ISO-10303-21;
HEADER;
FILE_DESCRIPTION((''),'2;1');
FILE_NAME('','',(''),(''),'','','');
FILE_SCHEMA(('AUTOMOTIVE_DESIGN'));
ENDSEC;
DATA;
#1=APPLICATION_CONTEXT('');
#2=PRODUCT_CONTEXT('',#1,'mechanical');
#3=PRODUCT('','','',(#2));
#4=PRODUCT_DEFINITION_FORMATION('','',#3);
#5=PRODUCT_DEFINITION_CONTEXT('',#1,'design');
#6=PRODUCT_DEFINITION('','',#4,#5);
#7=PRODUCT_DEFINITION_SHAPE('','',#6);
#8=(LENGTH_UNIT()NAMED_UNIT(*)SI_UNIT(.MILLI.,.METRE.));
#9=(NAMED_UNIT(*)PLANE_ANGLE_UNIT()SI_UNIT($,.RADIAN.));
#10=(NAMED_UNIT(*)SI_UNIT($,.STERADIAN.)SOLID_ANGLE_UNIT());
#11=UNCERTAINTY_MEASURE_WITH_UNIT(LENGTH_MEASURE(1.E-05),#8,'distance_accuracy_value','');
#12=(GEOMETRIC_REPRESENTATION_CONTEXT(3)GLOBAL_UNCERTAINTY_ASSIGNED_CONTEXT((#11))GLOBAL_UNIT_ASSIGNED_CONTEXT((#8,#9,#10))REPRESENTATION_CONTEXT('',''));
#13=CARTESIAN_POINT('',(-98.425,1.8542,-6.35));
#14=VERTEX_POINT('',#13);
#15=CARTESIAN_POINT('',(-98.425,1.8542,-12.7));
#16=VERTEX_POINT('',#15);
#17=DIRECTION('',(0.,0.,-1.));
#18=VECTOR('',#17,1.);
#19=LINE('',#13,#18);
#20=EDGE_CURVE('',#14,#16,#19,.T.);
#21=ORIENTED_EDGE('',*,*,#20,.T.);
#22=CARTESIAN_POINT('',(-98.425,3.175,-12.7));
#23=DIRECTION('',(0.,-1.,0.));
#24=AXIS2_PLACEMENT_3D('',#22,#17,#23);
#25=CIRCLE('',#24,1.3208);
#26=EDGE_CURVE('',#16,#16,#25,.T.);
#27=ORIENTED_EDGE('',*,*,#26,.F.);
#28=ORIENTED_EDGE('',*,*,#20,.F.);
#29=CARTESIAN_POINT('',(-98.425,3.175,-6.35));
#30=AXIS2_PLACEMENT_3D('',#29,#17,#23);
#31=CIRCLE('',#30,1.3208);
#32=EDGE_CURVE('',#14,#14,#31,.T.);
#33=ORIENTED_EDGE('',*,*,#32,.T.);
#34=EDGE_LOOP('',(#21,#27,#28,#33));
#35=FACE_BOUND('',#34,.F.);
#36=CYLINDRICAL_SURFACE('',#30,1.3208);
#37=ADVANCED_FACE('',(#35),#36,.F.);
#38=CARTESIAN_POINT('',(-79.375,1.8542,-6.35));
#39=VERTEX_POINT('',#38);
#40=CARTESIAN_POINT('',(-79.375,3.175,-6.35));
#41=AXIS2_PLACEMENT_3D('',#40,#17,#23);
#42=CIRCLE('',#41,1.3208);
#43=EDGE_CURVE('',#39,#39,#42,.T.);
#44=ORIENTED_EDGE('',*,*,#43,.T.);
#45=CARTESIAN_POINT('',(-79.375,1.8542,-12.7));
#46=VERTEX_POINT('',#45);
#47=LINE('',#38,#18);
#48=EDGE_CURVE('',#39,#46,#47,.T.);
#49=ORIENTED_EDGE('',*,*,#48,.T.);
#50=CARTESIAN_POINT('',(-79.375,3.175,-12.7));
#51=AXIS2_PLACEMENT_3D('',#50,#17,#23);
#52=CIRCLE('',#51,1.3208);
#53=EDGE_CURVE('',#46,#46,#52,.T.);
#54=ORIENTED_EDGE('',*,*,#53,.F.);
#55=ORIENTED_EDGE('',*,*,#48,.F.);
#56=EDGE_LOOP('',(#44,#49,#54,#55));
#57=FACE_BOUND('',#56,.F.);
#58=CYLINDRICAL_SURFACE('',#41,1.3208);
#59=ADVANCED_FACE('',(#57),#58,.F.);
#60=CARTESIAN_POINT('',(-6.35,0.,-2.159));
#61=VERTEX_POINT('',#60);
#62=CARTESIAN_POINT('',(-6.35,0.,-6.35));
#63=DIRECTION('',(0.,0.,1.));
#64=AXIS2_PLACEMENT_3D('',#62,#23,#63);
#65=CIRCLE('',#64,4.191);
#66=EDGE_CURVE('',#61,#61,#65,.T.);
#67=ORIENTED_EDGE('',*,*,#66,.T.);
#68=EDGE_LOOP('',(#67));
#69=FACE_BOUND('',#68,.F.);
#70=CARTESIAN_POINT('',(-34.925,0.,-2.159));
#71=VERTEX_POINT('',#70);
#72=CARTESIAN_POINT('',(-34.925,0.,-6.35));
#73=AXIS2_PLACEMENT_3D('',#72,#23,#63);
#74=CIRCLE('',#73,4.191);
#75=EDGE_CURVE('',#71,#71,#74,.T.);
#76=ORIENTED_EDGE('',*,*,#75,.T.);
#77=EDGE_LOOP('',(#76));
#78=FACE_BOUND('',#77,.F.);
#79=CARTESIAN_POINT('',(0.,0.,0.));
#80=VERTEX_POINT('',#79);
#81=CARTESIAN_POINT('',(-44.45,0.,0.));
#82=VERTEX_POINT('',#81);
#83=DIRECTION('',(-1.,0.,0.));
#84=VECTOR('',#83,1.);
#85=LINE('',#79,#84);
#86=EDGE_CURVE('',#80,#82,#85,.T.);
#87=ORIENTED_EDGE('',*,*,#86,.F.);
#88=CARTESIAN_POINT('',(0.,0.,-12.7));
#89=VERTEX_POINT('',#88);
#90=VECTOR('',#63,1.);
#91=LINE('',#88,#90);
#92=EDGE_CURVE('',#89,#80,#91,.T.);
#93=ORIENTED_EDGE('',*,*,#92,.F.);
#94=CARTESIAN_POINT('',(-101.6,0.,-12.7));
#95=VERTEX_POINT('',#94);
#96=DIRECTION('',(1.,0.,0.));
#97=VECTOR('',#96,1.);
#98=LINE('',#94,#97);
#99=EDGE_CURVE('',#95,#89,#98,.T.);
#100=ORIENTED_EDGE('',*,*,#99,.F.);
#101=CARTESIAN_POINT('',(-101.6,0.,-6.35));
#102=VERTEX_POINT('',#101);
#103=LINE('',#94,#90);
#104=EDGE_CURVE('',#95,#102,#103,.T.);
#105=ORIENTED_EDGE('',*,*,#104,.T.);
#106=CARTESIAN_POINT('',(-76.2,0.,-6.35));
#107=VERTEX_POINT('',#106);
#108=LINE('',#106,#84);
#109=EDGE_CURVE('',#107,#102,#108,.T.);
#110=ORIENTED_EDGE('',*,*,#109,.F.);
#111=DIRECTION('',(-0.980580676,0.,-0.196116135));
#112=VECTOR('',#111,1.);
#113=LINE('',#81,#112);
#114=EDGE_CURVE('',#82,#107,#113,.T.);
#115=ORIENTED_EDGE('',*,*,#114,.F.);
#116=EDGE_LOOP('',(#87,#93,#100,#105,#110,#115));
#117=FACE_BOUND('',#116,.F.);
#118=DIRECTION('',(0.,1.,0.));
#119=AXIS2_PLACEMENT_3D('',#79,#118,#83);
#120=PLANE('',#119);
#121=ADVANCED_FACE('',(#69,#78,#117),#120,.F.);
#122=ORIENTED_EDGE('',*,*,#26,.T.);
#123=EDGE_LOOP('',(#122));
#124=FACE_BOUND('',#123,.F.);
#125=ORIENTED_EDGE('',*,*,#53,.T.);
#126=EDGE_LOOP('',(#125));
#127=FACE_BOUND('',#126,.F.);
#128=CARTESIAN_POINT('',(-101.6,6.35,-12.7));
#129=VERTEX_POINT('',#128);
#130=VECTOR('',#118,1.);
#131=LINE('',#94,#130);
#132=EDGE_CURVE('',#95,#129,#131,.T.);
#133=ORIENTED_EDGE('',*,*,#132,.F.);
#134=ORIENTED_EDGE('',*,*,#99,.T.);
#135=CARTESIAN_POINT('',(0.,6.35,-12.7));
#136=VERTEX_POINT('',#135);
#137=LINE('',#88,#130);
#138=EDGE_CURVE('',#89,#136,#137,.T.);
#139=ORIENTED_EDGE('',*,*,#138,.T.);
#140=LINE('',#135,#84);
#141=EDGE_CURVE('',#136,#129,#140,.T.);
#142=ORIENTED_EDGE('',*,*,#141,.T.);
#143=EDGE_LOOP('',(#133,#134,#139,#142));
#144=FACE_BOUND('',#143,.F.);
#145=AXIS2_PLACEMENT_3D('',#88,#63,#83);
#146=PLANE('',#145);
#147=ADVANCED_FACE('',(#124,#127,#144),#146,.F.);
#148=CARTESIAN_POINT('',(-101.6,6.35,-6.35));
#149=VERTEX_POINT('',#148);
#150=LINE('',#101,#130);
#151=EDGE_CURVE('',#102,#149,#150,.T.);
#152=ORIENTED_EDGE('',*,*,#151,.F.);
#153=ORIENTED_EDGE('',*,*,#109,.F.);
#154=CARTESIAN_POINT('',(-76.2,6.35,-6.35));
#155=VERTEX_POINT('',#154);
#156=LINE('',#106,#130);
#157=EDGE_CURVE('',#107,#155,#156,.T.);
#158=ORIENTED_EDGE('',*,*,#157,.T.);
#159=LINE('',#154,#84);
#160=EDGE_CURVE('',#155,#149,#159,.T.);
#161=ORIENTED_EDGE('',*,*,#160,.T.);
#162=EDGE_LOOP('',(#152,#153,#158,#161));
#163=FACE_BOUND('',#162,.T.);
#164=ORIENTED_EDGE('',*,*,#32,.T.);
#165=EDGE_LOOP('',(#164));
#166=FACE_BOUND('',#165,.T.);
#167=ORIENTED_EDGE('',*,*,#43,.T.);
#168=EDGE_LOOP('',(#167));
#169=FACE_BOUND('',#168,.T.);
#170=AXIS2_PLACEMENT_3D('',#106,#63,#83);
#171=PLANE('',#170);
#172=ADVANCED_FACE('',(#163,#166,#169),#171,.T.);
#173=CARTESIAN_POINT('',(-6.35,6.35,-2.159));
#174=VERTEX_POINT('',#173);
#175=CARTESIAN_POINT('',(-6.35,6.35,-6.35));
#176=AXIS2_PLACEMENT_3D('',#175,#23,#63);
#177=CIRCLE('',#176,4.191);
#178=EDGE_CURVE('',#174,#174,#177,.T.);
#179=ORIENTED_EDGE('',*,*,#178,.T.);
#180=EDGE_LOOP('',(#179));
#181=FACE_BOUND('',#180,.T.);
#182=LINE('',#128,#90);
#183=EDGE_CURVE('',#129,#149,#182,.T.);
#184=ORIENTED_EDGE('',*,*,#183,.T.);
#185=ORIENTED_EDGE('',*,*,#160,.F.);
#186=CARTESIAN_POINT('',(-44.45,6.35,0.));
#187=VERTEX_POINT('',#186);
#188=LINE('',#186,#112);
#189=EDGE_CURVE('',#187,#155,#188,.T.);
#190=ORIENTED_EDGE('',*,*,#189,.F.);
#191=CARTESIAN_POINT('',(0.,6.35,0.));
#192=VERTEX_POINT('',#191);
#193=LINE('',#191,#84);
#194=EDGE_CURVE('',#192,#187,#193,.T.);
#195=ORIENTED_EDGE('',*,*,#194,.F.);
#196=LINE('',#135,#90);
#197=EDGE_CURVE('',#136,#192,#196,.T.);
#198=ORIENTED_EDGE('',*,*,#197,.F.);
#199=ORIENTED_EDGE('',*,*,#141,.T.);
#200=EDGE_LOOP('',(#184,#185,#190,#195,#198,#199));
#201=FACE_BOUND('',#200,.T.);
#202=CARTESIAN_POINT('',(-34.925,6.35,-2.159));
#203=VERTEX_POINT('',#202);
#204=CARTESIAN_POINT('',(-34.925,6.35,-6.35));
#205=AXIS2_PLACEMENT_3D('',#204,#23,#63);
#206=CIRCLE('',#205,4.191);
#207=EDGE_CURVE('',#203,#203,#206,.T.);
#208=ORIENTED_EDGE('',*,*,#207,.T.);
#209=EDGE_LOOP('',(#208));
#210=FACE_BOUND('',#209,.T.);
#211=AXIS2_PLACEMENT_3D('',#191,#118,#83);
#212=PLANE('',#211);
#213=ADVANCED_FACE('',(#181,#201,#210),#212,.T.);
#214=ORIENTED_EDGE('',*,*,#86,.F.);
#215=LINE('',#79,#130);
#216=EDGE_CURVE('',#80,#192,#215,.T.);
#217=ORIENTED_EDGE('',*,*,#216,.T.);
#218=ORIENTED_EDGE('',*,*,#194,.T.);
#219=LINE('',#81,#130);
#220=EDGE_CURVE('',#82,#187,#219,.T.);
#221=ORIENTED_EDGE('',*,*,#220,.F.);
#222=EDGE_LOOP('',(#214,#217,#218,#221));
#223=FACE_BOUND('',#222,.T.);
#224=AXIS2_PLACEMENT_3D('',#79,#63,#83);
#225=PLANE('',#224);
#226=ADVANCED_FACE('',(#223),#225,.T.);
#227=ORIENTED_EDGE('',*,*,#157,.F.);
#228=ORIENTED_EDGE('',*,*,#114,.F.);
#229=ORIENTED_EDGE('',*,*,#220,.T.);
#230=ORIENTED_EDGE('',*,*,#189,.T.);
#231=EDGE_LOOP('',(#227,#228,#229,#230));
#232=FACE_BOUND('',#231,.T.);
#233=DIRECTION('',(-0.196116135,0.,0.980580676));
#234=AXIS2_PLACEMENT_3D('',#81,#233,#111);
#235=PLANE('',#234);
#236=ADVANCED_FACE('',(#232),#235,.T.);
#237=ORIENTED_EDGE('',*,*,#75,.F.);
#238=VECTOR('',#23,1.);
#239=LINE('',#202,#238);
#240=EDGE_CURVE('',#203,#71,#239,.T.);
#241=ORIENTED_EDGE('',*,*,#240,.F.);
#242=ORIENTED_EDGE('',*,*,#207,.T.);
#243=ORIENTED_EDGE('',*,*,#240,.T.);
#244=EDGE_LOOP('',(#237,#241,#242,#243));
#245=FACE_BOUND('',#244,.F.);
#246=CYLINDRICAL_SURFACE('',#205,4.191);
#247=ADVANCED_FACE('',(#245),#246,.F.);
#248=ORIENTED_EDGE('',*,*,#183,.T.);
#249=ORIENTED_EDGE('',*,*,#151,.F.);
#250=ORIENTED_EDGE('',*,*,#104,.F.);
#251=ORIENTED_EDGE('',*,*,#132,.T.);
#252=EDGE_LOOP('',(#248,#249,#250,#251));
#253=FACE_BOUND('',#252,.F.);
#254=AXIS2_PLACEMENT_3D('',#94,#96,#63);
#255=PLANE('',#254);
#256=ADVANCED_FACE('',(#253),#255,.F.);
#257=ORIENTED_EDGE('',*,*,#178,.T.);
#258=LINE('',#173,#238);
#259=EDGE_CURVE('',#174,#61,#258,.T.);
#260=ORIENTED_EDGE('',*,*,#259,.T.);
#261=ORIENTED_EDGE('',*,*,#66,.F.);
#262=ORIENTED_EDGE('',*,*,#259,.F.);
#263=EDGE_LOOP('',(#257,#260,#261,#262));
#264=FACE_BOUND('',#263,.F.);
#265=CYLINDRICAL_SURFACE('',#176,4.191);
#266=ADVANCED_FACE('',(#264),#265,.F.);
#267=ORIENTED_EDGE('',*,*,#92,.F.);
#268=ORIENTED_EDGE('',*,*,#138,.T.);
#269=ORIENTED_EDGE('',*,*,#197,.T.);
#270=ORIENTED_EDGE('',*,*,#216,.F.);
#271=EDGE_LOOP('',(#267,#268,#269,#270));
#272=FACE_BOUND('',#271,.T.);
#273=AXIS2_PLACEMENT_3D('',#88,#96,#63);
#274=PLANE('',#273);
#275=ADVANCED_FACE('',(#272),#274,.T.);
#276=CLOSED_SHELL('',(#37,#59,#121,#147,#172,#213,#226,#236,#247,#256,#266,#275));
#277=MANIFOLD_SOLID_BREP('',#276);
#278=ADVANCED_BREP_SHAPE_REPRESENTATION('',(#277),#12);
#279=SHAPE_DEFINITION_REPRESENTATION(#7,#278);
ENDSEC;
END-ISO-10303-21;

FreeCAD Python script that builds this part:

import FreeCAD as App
import Part
import Sketcher
Q = App.Units.Quantity

doc = App.newDocument("Part")
body = doc.addObject("PartDesign::Body", "Body")

# Sketch on XZ plane
sketch1 = body.newObject("Sketcher::SketchObject", "Sketch")
sketch1.AttachmentSupport = (doc.getObject("XZ_Plane"), [""])
sketch1.MapMode = "FlatFace"
sketch1.addGeometry([
    Part.LineSegment(App.Vector(-44, 0, 0), App.Vector(0, 0, 0)),  # 0
    Part.LineSegment(App.Vector(0, 0, 0), App.Vector(0, -13, 0)),  # 1
    Part.LineSegment(App.Vector(0, -13, 0), App.Vector(-102, -13, 0)),  # 2
    Part.LineSegment(App.Vector(-102, -13, 0), App.Vector(-102, -6, 0)),  # 3
    Part.LineSegment(App.Vector(-102, -6, 0), App.Vector(-76, -6, 0)),  # 4
    Part.LineSegment(App.Vector(-76, -6, 0), App.Vector(-44, 0, 0)),  # 5
], False)
sketch1.addConstraint([
    Sketcher.Constraint("Coincident", 0, 2, 1, 1),
    Sketcher.Constraint("Coincident", 1, 2, 2, 1),
    Sketcher.Constraint("Coincident", 2, 2, 3, 1),
    Sketcher.Constraint("Coincident", 3, 2, 4, 1),
    Sketcher.Constraint("Coincident", 4, 2, 5, 1),
    Sketcher.Constraint("Coincident", 5, 2, 0, 1),
    Sketcher.Constraint("Horizontal", 0),
    Sketcher.Constraint("Vertical", 1),
    Sketcher.Constraint("Horizontal", 2),
    Sketcher.Constraint("Vertical", 3),
    Sketcher.Constraint("Horizontal", 4),
    Sketcher.Constraint("Coincident", 0, 2, -1, 1),
    Sketcher.Constraint("DistanceX", 2, 2, 2, 1, Q("4 in")),
    Sketcher.Constraint("DistanceY", 1, 2, 1, 1, Q("0.5 in")),
    Sketcher.Constraint("DistanceX", 0, 1, 0, 2, Q("1.75 in")),
    Sketcher.Constraint("DistanceY", 3, 1, 3, 2, Q("0.25 in")),
    Sketcher.Constraint("DistanceX", 4, 1, 4, 2, Q("1 in")),
])
pad1 = body.newObject("PartDesign::Pad", "Pad")
pad1.Profile = sketch1
pad1.Length = Q("0.25 in")
pad1.Reversed = True

# Sketch on XZ plane
sketch2 = body.newObject("Sketcher::SketchObject", "Sketch001")
sketch2.AttachmentSupport = (doc.getObject("XZ_Plane"), [""])
sketch2.MapMode = "FlatFace"
sketch2.AttachmentOffset = App.Placement(App.Vector(0, 0, -0.25 * 25.4), App.Rotation())
sketch2.addGeometry([
    Part.Circle(App.Vector(-6.3, -6.3, 0), App.Vector(0, 0, 1), 4.2),
    Part.Circle(App.Vector(-34.9, -6.3, 0), App.Vector(0, 0, 1), 4.2),
], False)
sketch2.addConstraint([
    Sketcher.Constraint("Equal", 0, 1),
    Sketcher.Constraint("Horizontal", 0, 3, 1, 3),
    Sketcher.Constraint("Diameter", 0, Q("0.33 in")),
    Sketcher.Constraint("DistanceX", 0, 3, -1, 1, Q("0.25 in")),
    Sketcher.Constraint("DistanceY", 0, 3, -1, 1, Q("0.25 in")),
    Sketcher.Constraint("DistanceX", 1, 3, -1, 1, Q("1.375 in")),
])
doc.recompute()
hole = body.newObject("PartDesign::Hole", "Hole")
hole.Profile = sketch2
hole.ThreadType = "None"
hole.Diameter = Q("0.33 in")
hole.DepthType = "Dimension"
hole.Depth = Q("1 in")
hole.DrillPoint = "Angled"
hole.DrillPointAngle = 118
hole.Reversed = True

# Sketch on XY plane
sketch3 = body.newObject("Sketcher::SketchObject", "Sketch002")
sketch3.AttachmentSupport = (doc.getObject("XY_Plane"), [""])
sketch3.MapMode = "FlatFace"
sketch3.AttachmentOffset = App.Placement(App.Vector(0, 0, -0.25 * 25.4), App.Rotation())
sketch3.addGeometry([
    Part.Circle(App.Vector(-98.4, 3.2, 0), App.Vector(0, 0, 1), 1.3),
    Part.Circle(App.Vector(-79.4, 3.2, 0), App.Vector(0, 0, 1), 1.3),
], False)
sketch3.addConstraint([
    Sketcher.Constraint("Equal", 0, 1),
    Sketcher.Constraint("Horizontal", 0, 3, 1, 3),
    Sketcher.Constraint("Diameter", 0, Q("0.104 in")),
    Sketcher.Constraint("DistanceX", 0, 3, 1, 3, Q("0.75 in")),
    Sketcher.Constraint("DistanceX", 0, 3, -1, 1, Q("3.875 in")),
    Sketcher.Constraint("DistanceY", -1, 1, 0, 3, Q("0.125 in")),
])
doc.recompute()
hole2 = body.newObject("PartDesign::Hole", "Hole001")
hole2.Profile = sketch3
hole2.ThreadType = "None"
hole2.Diameter = Q("0.104 in")
hole2.DepthType = "Dimension"
hole2.Depth = Q("0.432 in")
hole2.DrillPoint = "Angled"
hole2.DrillPointAngle = 118

doc.recompute()
